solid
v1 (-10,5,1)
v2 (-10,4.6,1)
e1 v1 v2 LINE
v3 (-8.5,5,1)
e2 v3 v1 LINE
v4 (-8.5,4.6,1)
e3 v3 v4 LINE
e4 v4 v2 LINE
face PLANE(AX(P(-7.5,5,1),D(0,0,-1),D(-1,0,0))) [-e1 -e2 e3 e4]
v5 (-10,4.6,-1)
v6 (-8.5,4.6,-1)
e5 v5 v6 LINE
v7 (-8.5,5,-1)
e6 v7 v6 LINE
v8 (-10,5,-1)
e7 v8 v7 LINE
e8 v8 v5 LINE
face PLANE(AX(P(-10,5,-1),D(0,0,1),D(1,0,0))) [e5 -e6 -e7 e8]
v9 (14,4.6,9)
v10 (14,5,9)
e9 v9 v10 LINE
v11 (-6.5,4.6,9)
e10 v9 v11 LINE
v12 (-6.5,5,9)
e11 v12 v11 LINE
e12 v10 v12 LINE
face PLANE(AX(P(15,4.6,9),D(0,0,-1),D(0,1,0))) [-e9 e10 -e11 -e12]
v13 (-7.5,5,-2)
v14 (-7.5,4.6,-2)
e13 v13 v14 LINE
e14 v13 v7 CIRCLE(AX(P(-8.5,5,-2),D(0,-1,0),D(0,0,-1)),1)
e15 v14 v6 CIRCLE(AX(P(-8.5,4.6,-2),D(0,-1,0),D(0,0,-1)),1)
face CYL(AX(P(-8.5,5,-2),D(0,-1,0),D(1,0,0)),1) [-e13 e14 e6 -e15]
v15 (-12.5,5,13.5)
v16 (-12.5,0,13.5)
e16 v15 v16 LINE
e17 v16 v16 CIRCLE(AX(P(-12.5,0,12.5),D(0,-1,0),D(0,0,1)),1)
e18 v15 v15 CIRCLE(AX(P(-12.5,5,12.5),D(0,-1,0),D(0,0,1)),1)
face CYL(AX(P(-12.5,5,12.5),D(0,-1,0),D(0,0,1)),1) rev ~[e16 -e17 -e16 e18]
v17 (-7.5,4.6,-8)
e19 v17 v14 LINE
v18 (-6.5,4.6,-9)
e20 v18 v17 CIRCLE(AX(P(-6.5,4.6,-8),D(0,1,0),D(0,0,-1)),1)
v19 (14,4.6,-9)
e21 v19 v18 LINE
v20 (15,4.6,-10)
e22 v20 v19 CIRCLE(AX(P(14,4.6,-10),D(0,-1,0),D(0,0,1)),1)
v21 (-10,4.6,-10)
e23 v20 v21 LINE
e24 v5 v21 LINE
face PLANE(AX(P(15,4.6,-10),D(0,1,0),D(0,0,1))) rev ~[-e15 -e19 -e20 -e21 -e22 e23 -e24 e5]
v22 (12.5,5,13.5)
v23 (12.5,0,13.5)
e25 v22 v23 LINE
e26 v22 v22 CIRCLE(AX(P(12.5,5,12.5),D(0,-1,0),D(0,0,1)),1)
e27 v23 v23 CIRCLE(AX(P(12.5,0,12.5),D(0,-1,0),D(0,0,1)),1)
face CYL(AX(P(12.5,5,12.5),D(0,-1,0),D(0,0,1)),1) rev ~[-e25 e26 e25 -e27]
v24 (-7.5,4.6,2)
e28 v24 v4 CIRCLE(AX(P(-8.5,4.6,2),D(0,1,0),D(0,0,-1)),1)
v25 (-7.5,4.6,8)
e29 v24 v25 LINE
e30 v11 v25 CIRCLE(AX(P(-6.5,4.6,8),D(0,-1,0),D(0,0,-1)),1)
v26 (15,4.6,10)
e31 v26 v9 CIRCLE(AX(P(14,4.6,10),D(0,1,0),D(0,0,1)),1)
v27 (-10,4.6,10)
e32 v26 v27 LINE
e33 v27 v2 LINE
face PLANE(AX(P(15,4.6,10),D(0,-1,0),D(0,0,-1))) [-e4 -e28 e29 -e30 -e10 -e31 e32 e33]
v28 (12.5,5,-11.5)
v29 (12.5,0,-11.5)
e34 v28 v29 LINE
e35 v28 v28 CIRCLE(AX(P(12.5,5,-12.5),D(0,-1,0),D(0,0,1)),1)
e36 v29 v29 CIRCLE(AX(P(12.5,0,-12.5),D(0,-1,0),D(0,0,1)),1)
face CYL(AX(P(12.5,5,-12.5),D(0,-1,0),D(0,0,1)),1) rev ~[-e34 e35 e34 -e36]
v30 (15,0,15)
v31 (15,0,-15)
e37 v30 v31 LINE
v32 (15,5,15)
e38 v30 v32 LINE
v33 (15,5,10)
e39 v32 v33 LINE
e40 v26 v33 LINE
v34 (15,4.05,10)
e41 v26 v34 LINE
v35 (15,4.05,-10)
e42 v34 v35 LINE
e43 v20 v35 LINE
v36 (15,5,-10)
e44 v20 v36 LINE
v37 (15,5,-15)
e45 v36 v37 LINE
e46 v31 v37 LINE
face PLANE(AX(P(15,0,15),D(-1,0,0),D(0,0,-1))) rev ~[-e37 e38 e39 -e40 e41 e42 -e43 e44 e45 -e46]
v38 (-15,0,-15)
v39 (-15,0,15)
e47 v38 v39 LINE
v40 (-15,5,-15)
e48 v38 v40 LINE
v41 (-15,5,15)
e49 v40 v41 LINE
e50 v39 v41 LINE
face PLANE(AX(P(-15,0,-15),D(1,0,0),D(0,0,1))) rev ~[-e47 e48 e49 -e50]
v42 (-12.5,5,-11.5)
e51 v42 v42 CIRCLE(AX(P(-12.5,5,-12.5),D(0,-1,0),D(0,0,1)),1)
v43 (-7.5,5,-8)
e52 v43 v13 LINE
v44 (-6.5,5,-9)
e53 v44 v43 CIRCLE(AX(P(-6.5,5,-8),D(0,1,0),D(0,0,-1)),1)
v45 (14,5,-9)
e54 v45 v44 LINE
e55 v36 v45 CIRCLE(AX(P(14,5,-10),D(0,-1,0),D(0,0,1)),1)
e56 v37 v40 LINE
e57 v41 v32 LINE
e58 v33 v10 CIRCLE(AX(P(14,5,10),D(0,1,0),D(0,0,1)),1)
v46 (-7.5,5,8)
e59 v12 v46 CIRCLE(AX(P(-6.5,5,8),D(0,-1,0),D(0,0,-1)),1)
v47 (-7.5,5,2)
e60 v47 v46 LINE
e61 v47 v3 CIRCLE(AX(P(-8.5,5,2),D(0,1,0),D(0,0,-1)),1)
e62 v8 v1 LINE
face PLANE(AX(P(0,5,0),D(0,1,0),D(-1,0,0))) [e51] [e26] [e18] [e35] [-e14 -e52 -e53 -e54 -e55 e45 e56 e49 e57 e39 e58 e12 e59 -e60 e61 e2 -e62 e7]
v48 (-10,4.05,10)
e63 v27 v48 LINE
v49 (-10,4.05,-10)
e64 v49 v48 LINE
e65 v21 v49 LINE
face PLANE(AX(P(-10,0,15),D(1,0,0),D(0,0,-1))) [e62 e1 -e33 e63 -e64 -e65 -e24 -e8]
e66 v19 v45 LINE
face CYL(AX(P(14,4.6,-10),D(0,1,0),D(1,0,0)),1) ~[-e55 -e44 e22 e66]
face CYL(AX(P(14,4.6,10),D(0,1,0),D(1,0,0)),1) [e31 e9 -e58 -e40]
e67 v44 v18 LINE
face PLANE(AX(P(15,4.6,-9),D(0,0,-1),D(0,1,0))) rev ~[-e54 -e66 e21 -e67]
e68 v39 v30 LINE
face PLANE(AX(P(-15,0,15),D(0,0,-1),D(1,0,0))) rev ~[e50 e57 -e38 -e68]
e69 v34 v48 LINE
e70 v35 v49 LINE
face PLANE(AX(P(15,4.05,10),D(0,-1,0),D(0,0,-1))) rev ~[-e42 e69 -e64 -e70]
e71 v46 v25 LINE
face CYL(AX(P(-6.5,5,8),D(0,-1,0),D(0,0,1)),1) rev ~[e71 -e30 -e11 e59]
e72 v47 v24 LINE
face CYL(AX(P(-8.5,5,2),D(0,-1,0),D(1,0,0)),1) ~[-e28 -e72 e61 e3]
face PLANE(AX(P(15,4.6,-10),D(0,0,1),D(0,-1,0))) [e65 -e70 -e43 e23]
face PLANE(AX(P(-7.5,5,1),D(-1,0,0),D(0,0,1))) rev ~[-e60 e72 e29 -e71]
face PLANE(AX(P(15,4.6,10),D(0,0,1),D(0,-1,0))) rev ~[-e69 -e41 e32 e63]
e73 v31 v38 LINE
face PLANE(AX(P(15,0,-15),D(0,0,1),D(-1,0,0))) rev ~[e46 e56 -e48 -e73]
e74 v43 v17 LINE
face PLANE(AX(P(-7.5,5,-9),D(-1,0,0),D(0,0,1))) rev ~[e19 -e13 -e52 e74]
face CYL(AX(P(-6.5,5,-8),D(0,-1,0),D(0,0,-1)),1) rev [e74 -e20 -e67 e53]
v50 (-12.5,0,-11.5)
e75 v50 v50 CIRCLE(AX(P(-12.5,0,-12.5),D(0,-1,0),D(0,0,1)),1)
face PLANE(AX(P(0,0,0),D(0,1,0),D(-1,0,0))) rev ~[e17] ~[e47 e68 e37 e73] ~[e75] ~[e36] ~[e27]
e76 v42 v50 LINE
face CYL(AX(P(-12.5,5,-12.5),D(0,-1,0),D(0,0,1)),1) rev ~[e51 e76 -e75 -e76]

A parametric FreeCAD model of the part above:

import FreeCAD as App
import Part
import Sketcher
from FreeCAD import Vector
Q = App.Units.Quantity


def edges_at(feature, points):
    """Names of the edges that pass closest to the given points."""
    edges = feature.Shape.Edges
    near = lambda p: min(range(len(edges)), key=lambda i: edges[i].distToShape(Part.Vertex(*p))[0])
    return sorted({f"Edge{near(p) + 1}" for p in points})


def add_polygon(sketch, points):
    """Adds a closed chain of lines whose ends are joined by coincident constraints."""
    first, n = sketch.GeometryCount, len(points)
    for a, b in zip(points, points[1:] + points[:1]):
        sketch.addGeometry(Part.LineSegment(App.Vector(*a, 0), App.Vector(*b, 0)), False)
    for i in range(n):
        sketch.addConstraint(Sketcher.Constraint("Coincident", first + i, 2, first + (i + 1) % n, 1))

doc = App.newDocument("Part")
params = doc.addObject("Spreadsheet::Sheet", "Params")
for row, (alias, value) in enumerate([
    ("sketch1_width", "30 mm"),
    ("pad1_length", "5 mm"),
    ("sketch2_height", "1 mm"),
    ("sketch2_height2", "20 mm"),
    ("sketch2_width", "0.4 mm"),
    ("sketch2_width2", "0.55 mm"),
    ("pocket1_length", "25 mm"),
    ("sketch3_width", "2.5 mm"),
    ("sketch3_height", "8 mm"),
    ("pad2_length", "0.4 mm"),
    ("fillet_radius", "1 mm"),
    ("sketch4_diameter", "2 mm"),
    ("hole_diameter", "2 mm"),
], start=1):
    params.set(f"A{row}", alias)
    params.set(f"B{row}", "=" + value)
    params.setAlias(f"B{row}", alias)

body = doc.addObject("PartDesign::Body", "Body")

sketch1 = body.newObject("Sketcher::SketchObject", "Sketch")
sketch1.AttachmentSupport = (doc.getObject("XZ_Plane"), [""])
sketch1.MapMode = "FlatFace"
add_polygon(sketch1, [(15, 15), (15, -15), (-15, -15), (-15, 15)])
sketch1.addConstraint(Sketcher.Constraint("Vertical", 0))
sketch1.addConstraint(Sketcher.Constraint("Horizontal", 1))
sketch1.addConstraint(Sketcher.Constraint("Vertical", 2))
sketch1.addConstraint(Sketcher.Constraint("Horizontal", 3))
sketch1.addConstraint(Sketcher.Constraint("Symmetric", 0, 2, 2, 2, -1, 1))
sketch1.addConstraint(Sketcher.Constraint("Equal", 3, 0))
sketch1.addConstraint(Sketcher.Constraint("DistanceX", 1, 2, 1, 1, Q("30 mm")))
sketch1.setExpression("Constraints[10]", "Params.sketch1_width")
pad1 = body.newObject("PartDesign::Pad", "Pad")
pad1.Profile = sketch1
pad1.setExpression("Length", "Params.pad1_length")
pad1.Reversed = True

sketch2 = body.newObject("Sketcher::SketchObject", "Sketch001")
sketch2.AttachmentSupport = (doc.getObject("YZ_Plane"), [""])
sketch2.MapMode = "FlatFace"
sketch2.AttachmentOffset = App.Placement(Vector(0, 0, 15), App.Rotation())
add_polygon(sketch2, [(5, 9), (4.6, 9), (4.6, 10), (4.05, 10), (4.05, -10), (4.6, -10), (4.6, -9), (5, -9)])
sketch2.addConstraint(Sketcher.Constraint("Horizontal", 0))
sketch2.addConstraint(Sketcher.Constraint("Vertical", 1))
sketch2.addConstraint(Sketcher.Constraint("Horizontal", 2))
sketch2.addConstraint(Sketcher.Constraint("Vertical", 3))
sketch2.addConstraint(Sketcher.Constraint("Horizontal", 4))
sketch2.addConstraint(Sketcher.Constraint("Vertical", 5))
sketch2.addConstraint(Sketcher.Constraint("Horizontal", 6))
sketch2.addConstraint(Sketcher.Constraint("Vertical", 7))
sketch2.addConstraint(Sketcher.Constraint("Symmetric", 1, 2, 4, 2, -1))
sketch2.addConstraint(Sketcher.Constraint("Equal", 1, 5))
sketch2.addConstraint(Sketcher.Constraint("DistanceY", 1, 1, 1, 2, Q("1 mm")))
sketch2.addConstraint(Sketcher.Constraint("DistanceY", 3, 2, 3, 1, Q("20 mm")))
sketch2.addConstraint(Sketcher.Constraint("DistanceX", 0, 2, 0, 1, Q("0.4 mm")))
sketch2.addConstraint(Sketcher.Constraint("DistanceX", 2, 2, 2, 1, Q("0.55 mm")))
sketch2.addConstraint(Sketcher.Constraint("DistanceX", -1, 1, 6, 2, Q("5 mm")))
sketch2.setExpression("Constraints[18]", "Params.sketch2_height")
sketch2.setExpression("Constraints[19]", "Params.sketch2_height2")
sketch2.setExpression("Constraints[20]", "Params.sketch2_width")
sketch2.setExpression("Constraints[21]", "Params.sketch2_width2")
pocket1 = body.newObject("PartDesign::Pocket", "Pocket")
pocket1.Profile = sketch2
pocket1.setExpression("Length", "Params.pocket1_length")

sketch3 = body.newObject("Sketcher::SketchObject", "Sketch002")
sketch3.AttachmentSupport = (doc.getObject("XZ_Plane"), [""])
sketch3.MapMode = "FlatFace"
sketch3.AttachmentOffset = App.Placement(Vector(0, 0, -5), App.Rotation())
add_polygon(sketch3, [(-7.5, -9), (-10, -9), (-10, -1), (-7.5, -1)])
add_polygon(sketch3, [(-7.5, 1), (-10, 1), (-10, 9), (-7.5, 9)])
sketch3.addConstraint(Sketcher.Constraint("Horizontal", 0))
sketch3.addConstraint(Sketcher.Constraint("Vertical", 1))
sketch3.addConstraint(Sketcher.Constraint("Horizontal", 2))
sketch3.addConstraint(Sketcher.Constraint("Vertical", 3))
sketch3.addConstraint(Sketcher.Constraint("Horizontal", 4))
sketch3.addConstraint(Sketcher.Constraint("Vertical", 5))
sketch3.addConstraint(Sketcher.Constraint("Horizontal", 6))
sketch3.addConstraint(Sketcher.Constraint("Vertical", 7))
sketch3.addConstraint(Sketcher.Constraint("Symmetric", 1, 2, 4, 2, -1))
sketch3.addConstraint(Sketcher.Constraint("Symmetric", 3, 2, 6, 2, -1))
sketch3.addConstraint(Sketcher.Constraint("DistanceX", 0, 2, 0, 1, Q("2.5 mm")))
sketch3.addConstraint(Sketcher.Constraint("DistanceY", 1, 2, -1, 1, Q("1 mm")))
sketch3.addConstraint(Sketcher.Constraint("DistanceY", 1, 1, 1, 2, Q("8 mm")))
sketch3.addConstraint(Sketcher.Constraint("DistanceX", 0, 2, -1, 1, Q("10 mm")))
sketch3.setExpression("Constraints[18]", "Params.sketch3_width")
sketch3.setExpression("Constraints[20]", "Params.sketch3_height")
pad2 = body.newObject("PartDesign::Pad", "Pad001")
pad2.Profile = sketch3
pad2.setExpression("Length", "Params.pad2_length")
doc.recompute()

fillet = body.newObject("PartDesign::Fillet", "Fillet")
fillet.Base = (pad2, edges_at(pad2, [
    (15, 4.8, 9),
    (15, 4.8, -9),
    (-7.5, 4.8, -1),
    (-7.5, 4.8, 1),
    (-7.5, 4.8, 9),
    (-7.5, 4.8, -9),
]))
fillet.setExpression("Radius", "Params.fillet_radius")

sketch4 = body.newObject("Sketcher::SketchObject", "Sketch003")
sketch4.AttachmentSupport = (doc.getObject("XZ_Plane"), [""])
sketch4.MapMode = "FlatFace"
sketch4.AttachmentOffset = App.Placement(Vector(0, 0, -5), App.Rotation())
sketch4.addGeometry(Part.Circle(Vector(12.5, 12.5, 0), Vector(0, 0, 1), 1), False)
sketch4.addGeometry(Part.Circle(Vector(-12.5, 12.5, 0), Vector(0, 0, 1), 1), False)
sketch4.addGeometry(Part.Circle(Vector(-12.5, -12.5, 0), Vector(0, 0, 1), 1), False)
sketch4.addGeometry(Part.Circle(Vector(12.5, -12.5, 0), Vector(0, 0, 1), 1), False)
sketch4.addConstraint(Sketcher.Constraint("Equal", 0, 1))
sketch4.addConstraint(Sketcher.Constraint("Equal", 1, 2))
sketch4.addConstraint(Sketcher.Constraint("Equal", 2, 3))
sketch4.addConstraint(Sketcher.Constraint("Symmetric", 0, 3, 2, 3, -1, 1))
sketch4.addConstraint(Sketcher.Constraint("Symmetric", 1, 3, 3, 3, -1, 1))
sketch4.addConstraint(Sketcher.Constraint("Symmetric", 0, 3, 1, 3, -2))
sketch4.addConstraint(Sketcher.Constraint("Diameter", 0, Q("2 mm")))
sketch4.addConstraint(Sketcher.Constraint("DistanceX", 1, 3, 0, 3, Q("25 mm")))
sketch4.addConstraint(Sketcher.Constraint("DistanceY", 2, 3, 1, 3, Q("25 mm")))
sketch4.setExpression("Constraints[6]", "Params.sketch4_diameter")
doc.recompute()
hole = body.newObject("PartDesign::Hole", "Hole")
hole.Profile = sketch4
hole.ThreadType = "None"
hole.setExpression("Diameter", "Params.hole_diameter")
hole.DepthType = "ThroughAll"
hole.Reversed = True

doc.recompute()
